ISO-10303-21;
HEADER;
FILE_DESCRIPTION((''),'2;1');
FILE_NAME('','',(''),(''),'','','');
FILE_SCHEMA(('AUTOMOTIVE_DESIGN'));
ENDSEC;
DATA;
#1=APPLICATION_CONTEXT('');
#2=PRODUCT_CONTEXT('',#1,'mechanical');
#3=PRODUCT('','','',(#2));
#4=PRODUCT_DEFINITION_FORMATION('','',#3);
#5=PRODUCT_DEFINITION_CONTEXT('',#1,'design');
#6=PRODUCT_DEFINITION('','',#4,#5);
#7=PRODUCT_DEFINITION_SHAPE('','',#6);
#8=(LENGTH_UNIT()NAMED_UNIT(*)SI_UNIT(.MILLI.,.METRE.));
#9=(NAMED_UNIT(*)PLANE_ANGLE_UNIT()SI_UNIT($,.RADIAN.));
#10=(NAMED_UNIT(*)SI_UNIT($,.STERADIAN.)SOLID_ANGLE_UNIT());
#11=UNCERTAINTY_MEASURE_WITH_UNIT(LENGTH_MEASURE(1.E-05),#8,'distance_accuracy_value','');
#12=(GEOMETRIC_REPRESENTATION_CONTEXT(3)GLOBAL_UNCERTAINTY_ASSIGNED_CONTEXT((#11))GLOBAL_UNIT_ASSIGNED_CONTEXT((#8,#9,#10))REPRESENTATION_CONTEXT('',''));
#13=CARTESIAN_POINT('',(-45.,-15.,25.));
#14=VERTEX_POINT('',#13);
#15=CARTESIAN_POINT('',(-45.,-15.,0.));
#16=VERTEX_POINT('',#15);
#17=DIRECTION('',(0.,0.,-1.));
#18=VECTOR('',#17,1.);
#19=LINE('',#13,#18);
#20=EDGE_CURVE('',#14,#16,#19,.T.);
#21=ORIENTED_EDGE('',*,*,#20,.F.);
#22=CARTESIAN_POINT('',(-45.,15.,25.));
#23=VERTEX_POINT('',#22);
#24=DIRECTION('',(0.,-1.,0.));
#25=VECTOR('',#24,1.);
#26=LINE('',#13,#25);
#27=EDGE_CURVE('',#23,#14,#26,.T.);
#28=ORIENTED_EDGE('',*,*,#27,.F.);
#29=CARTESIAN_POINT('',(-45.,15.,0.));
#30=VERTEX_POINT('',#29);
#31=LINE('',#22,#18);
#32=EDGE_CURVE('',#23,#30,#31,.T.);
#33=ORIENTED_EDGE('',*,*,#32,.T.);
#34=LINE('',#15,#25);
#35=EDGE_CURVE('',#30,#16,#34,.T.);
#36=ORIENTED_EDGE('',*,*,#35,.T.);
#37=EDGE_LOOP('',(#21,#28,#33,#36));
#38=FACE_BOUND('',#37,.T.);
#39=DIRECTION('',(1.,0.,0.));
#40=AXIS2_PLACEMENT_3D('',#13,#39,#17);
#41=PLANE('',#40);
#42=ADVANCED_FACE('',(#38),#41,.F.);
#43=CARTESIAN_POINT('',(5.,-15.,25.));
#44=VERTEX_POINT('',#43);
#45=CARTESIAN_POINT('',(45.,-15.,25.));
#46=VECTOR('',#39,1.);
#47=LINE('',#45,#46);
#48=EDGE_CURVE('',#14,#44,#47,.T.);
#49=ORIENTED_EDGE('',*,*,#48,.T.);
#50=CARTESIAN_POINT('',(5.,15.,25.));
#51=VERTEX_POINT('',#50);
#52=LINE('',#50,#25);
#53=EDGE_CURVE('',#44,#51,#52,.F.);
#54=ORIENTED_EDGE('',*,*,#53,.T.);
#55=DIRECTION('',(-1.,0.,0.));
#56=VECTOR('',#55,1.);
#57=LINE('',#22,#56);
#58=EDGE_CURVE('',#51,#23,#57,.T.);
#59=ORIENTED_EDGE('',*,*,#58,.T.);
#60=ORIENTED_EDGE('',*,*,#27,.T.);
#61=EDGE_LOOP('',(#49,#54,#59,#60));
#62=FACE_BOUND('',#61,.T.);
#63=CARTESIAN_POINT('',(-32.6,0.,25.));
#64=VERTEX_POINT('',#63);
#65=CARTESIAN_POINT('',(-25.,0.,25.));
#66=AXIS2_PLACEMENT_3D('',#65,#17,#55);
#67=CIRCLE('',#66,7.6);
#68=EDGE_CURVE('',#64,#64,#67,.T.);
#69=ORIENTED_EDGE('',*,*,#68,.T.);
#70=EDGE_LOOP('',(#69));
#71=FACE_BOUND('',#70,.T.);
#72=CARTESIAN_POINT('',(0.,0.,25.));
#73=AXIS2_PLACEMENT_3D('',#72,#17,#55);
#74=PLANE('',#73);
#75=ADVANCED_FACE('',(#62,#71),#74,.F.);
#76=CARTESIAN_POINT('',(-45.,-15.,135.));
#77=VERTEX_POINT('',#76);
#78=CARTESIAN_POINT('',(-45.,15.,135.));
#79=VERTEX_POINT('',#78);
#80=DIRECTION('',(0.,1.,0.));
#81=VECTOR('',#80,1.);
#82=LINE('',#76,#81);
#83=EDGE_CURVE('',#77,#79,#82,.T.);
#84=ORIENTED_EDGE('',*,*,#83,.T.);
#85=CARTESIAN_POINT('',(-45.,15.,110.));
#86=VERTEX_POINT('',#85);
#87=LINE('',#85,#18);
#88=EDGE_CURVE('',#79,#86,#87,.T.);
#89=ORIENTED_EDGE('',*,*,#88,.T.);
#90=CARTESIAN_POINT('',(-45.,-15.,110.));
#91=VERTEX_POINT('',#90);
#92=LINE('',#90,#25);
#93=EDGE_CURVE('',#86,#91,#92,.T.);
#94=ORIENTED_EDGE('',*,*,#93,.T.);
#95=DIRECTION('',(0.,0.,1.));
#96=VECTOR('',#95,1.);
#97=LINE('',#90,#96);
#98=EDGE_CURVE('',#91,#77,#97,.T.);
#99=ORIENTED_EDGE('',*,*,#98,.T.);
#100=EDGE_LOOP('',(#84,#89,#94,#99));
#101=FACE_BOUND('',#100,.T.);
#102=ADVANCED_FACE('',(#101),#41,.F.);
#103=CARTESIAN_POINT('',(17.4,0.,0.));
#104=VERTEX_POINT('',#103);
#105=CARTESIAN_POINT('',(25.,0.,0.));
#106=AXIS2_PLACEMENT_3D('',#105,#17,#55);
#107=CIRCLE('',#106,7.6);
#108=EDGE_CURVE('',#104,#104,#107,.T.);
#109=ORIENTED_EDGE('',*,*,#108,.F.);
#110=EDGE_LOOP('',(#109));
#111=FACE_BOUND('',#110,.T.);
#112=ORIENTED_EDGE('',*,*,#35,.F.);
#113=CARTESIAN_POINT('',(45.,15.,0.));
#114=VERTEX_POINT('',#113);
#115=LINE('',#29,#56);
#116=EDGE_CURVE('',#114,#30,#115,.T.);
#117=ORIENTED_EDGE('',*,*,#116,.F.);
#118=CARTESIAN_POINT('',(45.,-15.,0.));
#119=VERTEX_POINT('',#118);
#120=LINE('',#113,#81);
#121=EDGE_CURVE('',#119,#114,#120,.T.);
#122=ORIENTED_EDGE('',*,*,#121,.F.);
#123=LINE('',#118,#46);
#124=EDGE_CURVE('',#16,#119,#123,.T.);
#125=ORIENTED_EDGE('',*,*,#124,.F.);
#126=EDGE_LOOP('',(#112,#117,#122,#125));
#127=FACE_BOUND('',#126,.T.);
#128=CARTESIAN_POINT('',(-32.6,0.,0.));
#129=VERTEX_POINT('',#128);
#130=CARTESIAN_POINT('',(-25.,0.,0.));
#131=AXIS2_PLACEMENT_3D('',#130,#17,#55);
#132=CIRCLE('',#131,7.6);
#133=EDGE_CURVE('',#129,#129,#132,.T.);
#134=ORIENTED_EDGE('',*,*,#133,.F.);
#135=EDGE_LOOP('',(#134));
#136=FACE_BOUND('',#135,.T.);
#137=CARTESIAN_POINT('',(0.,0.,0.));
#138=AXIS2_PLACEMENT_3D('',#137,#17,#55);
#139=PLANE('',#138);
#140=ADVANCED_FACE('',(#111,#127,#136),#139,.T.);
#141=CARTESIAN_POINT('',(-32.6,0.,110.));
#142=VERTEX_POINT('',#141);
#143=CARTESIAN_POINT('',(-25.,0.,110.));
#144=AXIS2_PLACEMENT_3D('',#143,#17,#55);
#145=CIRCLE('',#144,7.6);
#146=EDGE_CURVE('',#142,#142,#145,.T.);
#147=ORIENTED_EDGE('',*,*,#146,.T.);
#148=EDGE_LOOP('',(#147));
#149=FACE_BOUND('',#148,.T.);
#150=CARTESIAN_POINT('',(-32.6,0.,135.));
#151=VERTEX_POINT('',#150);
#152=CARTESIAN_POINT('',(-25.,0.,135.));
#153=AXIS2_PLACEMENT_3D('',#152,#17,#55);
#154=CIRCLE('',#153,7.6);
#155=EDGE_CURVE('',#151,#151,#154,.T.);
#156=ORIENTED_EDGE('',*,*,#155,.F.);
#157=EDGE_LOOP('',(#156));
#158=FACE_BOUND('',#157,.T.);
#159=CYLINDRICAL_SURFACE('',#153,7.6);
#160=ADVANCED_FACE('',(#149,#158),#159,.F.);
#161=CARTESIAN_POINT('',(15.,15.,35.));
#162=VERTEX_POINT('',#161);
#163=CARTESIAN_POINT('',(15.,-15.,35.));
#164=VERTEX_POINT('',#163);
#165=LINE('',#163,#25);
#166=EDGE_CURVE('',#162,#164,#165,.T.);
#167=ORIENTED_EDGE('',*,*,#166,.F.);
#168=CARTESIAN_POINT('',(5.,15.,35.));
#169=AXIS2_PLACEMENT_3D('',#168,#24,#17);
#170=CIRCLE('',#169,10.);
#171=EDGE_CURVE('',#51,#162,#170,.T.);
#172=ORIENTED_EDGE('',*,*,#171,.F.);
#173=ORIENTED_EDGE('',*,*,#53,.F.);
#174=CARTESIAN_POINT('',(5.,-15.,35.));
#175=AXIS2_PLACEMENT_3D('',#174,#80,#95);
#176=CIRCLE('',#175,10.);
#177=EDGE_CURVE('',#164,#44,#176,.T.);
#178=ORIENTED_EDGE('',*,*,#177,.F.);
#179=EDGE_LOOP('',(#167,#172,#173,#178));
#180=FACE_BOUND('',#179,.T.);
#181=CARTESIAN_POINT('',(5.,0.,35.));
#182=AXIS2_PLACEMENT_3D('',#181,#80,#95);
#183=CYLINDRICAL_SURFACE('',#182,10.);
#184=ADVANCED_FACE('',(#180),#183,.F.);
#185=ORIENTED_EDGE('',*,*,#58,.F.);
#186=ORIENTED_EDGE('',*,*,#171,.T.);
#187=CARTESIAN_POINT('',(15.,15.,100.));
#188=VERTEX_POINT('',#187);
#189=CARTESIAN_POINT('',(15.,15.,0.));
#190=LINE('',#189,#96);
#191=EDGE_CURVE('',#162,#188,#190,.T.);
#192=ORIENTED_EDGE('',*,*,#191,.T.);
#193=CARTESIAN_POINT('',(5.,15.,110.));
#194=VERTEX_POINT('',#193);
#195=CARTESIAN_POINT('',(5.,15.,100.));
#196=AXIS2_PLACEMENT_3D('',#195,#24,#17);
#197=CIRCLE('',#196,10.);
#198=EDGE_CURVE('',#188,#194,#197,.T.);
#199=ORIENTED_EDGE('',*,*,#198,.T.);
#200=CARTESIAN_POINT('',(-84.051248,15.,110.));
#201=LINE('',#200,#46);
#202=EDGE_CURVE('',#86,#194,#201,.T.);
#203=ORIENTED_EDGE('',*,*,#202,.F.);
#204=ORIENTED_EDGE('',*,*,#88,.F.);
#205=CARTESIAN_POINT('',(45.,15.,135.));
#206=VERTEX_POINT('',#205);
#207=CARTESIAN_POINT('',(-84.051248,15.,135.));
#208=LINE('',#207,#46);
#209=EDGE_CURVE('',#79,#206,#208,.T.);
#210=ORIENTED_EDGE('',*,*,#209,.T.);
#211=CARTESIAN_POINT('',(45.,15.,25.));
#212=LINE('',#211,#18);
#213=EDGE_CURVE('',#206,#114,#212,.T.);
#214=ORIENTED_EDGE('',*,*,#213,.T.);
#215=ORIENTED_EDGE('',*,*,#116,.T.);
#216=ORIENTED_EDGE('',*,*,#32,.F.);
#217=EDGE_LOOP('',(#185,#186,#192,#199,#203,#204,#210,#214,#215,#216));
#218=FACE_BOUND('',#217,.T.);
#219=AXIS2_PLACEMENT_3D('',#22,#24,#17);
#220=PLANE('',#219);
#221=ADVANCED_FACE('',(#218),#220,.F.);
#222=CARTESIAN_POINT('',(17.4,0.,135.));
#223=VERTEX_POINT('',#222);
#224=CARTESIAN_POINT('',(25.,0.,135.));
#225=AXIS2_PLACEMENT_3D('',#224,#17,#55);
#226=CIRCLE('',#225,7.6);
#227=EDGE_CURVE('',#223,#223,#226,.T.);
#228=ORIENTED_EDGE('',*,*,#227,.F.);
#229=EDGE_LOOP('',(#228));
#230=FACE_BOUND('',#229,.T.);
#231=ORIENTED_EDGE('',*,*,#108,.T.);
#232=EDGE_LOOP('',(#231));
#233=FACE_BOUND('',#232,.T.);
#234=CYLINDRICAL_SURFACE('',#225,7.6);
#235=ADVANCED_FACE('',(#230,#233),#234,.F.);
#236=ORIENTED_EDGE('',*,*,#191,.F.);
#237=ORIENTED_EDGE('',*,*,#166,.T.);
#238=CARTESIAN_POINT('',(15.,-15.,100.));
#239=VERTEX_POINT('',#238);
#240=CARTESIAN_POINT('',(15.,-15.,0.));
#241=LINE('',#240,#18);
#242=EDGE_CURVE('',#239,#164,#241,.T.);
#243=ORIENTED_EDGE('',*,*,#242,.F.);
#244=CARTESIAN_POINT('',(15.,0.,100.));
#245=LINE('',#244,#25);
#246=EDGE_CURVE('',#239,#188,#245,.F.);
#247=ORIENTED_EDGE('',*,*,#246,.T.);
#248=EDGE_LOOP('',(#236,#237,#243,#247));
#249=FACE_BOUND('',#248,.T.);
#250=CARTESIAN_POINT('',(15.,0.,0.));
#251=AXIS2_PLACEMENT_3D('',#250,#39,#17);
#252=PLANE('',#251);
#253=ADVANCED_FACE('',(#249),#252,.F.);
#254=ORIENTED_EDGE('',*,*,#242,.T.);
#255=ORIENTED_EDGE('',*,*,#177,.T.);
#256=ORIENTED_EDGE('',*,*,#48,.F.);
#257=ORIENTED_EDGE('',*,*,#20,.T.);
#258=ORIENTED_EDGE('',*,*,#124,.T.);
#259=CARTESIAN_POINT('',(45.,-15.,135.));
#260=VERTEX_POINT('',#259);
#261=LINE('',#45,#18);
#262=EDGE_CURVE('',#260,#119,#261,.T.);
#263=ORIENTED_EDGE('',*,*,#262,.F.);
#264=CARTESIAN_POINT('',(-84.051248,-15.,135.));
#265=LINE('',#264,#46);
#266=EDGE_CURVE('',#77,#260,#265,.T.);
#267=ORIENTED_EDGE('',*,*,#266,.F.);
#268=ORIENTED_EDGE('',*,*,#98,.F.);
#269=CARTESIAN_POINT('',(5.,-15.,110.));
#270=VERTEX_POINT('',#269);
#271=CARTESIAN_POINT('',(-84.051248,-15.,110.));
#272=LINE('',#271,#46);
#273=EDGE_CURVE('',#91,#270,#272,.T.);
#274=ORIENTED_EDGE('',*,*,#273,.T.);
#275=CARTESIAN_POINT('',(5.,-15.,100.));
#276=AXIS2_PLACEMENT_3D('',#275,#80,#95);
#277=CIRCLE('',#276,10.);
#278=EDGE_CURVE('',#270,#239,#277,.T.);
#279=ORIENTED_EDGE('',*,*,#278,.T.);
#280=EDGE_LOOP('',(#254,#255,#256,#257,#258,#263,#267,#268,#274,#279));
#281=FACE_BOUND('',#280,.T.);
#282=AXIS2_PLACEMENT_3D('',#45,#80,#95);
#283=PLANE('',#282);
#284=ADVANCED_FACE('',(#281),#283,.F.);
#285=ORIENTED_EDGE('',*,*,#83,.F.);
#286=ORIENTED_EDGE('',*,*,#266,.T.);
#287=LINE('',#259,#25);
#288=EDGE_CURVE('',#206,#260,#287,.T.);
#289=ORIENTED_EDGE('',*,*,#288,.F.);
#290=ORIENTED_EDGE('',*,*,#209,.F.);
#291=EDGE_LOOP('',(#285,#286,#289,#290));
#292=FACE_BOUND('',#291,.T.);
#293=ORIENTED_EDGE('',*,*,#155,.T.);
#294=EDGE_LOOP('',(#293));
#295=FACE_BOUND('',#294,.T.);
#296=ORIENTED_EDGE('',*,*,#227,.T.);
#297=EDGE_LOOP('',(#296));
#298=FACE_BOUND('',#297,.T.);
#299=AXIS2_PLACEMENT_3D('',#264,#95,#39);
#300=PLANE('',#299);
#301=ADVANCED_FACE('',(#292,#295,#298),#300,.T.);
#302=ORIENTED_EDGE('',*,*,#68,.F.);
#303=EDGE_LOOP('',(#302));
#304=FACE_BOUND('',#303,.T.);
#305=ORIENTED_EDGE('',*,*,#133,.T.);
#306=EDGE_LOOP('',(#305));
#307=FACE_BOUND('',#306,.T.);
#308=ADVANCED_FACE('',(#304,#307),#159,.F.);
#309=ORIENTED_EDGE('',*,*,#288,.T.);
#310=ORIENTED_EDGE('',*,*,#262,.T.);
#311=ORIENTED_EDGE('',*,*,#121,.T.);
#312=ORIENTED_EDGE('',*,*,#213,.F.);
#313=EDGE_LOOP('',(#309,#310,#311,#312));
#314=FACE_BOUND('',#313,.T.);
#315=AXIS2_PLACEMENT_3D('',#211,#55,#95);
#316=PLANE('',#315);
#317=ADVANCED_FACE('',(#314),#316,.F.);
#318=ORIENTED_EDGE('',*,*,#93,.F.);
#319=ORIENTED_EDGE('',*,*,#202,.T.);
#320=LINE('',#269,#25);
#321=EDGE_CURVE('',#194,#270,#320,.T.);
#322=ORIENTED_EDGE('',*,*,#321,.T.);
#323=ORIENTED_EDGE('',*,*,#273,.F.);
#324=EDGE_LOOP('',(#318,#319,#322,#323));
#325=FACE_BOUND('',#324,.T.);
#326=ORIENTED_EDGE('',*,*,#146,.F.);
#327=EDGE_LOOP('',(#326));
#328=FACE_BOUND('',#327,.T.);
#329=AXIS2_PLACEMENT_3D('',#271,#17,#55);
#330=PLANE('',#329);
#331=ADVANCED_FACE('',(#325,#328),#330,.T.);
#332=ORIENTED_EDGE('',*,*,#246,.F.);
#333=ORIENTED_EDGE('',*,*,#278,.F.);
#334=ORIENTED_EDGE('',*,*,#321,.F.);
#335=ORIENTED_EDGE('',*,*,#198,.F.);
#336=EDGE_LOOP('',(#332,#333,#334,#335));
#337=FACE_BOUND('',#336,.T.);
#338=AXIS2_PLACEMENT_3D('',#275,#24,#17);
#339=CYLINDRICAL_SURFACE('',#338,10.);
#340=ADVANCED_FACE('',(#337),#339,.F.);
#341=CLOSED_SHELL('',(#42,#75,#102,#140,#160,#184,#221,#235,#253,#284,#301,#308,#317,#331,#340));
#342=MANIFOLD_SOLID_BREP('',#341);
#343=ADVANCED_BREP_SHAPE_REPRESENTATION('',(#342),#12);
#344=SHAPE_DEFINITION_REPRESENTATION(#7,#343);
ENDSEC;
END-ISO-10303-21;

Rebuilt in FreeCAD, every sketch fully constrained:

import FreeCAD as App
import Part
import Sketcher
Q = App.Units.Quantity


def edges_at(feature, points):
    """Names of the edges that pass closest to the given points."""
    edges = feature.Shape.Edges
    near = lambda p: min(range(len(edges)), key=lambda i: edges[i].distToShape(Part.Vertex(*p))[0])
    return sorted({f"Edge{near(p) + 1}" for p in points})


def add_polygon(sketch, points):
    """Adds a closed chain of lines whose ends are joined by coincident constraints."""
    first, n = sketch.GeometryCount, len(points)
    for a, b in zip(points, points[1:] + points[:1]):
        sketch.addGeometry(Part.LineSegment(App.Vector(*a, 0), App.Vector(*b, 0)), False)
    for i in range(n):
        sketch.addConstraint(Sketcher.Constraint("Coincident", first + i, 2, first + (i + 1) % n, 1))

doc = App.newDocument("Part")
params = doc.addObject("Spreadsheet::Sheet", "Params")
for row, (alias, value) in enumerate([
    ("sketch1_width", "90 mm"),
    ("sketch1_height", "30 mm"),
    ("pad1_length", "25 mm"),
    ("sketch2_width", "30 mm"),
    ("sketch2_height", "110 mm"),
    ("pad2_length", "30 mm"),
    ("sketch3_width", "30 mm"),
    ("sketch3_height", "25 mm"),
    ("pad3_length", "90 mm"),
    ("sketch4_diameter", "15.2 mm"),
    ("fillet_radius", "10 mm"),
], start=1):
    params.set(f"A{row}", alias)
    params.set(f"B{row}", "=" + value)
    params.setAlias(f"B{row}", alias)

body = doc.addObject("PartDesign::Body", "Body")

# Sketch on XY plane
sketch1 = doc.addObject("Sketcher::SketchObject", "Sketch")
body.addObject(sketch1)
sketch1.AttachmentSupport = (doc.XY_Plane, [""])
sketch1.MapMode = "FlatFace"
add_polygon(sketch1, [(-45, 15), (-45, -15), (45, -15), (45, 15)])  # lines 0-3
sketch1.addConstraint([
    Sketcher.Constraint("Vertical", 0),
    Sketcher.Constraint("Horizontal", 1),
    Sketcher.Constraint("Vertical", 2),
    Sketcher.Constraint("Horizontal", 3),
    Sketcher.Constraint("Symmetric", 0, 2, 2, 2, -1, 1),
    Sketcher.Constraint("DistanceX", 1, 1, 1, 2, Q("90 mm")),
    Sketcher.Constraint("DistanceY", 0, 2, 0, 1, Q("30 mm")),
])
sketch1.setExpression("Constraints[9]", "Params.sketch1_width")
sketch1.setExpression("Constraints[10]", "Params.sketch1_height")
pad1 = doc.addObject("PartDesign::Pad", "Pad")
body.addObject(pad1)
pad1.Profile = sketch1
pad1.setExpression("Length", "Params.pad1_length")

# Sketch on YZ plane
sketch2 = doc.addObject("Sketcher::SketchObject", "Sketch001")
body.addObject(sketch2)
sketch2.AttachmentSupport = (doc.YZ_Plane, [""])
sketch2.MapMode = "FlatFace"
sketch2.AttachmentOffset = App.Placement(App.Vector(0, 0, 45), App.Rotation())
add_polygon(sketch2, [(15, 110), (-15, 110), (-15, 0), (15, 0)])  # lines 0-3
sketch2.addConstraint([
    Sketcher.Constraint("Horizontal", 0),
    Sketcher.Constraint("Vertical", 1),
    Sketcher.Constraint("Horizontal", 2),
    Sketcher.Constraint("Vertical", 3),
    Sketcher.Constraint("Symmetric", 1, 2, 2, 2, -1, 1),
    Sketcher.Constraint("DistanceX", 0, 2, 0, 1, Q("30 mm")),
    Sketcher.Constraint("DistanceY", 1, 2, 1, 1, Q("110 mm")),
])
sketch2.setExpression("Constraints[9]", "Params.sketch2_width")
sketch2.setExpression("Constraints[10]", "Params.sketch2_height")
pad2 = doc.addObject("PartDesign::Pad", "Pad001")
body.addObject(pad2)
pad2.Profile = sketch2
pad2.setExpression("Length", "Params.pad2_length")
pad2.Reversed = True

# Sketch on YZ plane
sketch3 = doc.addObject("Sketcher::SketchObject", "Sketch002")
body.addObject(sketch3)
sketch3.AttachmentSupport = (doc.YZ_Plane, [""])
sketch3.MapMode = "FlatFace"
sketch3.AttachmentOffset = App.Placement(App.Vector(0, 0, -45), App.Rotation())
add_polygon(sketch3, [(15, 135), (-15, 135), (-15, 110), (15, 110)])  # lines 0-3
sketch3.addConstraint([
    Sketcher.Constraint("Horizontal", 0),
    Sketcher.Constraint("Vertical", 1),
    Sketcher.Constraint("Horizontal", 2),
    Sketcher.Constraint("Vertical", 3),
    Sketcher.Constraint("DistanceX", 0, 2, 0, 1, Q("30 mm")),
    Sketcher.Constraint("DistanceY", 1, 2, 1, 1, Q("25 mm")),
    Sketcher.Constraint("DistanceX", 0, 2, -1, 1, Q("15 mm")),
    Sketcher.Constraint("DistanceY", -1, 1, 0, 2, Q("135 mm")),
])
sketch3.setExpression("Constraints[8]", "Params.sketch3_width")
sketch3.setExpression("Constraints[9]", "Params.sketch3_height")
pad3 = doc.addObject("PartDesign::Pad", "Pad002")
body.addObject(pad3)
pad3.Profile = sketch3
pad3.setExpression("Length", "Params.pad3_length")

# Sketch on XY plane
sketch4 = doc.addObject("Sketcher::SketchObject", "Sketch003")
body.addObject(sketch4)
sketch4.AttachmentSupport = (doc.XY_Plane, [""])
sketch4.MapMode = "FlatFace"
sketch4.addGeometry([
    Part.Circle(App.Vector(-25, 0, 0), App.Vector(0, 0, 1), 8),
    Part.Circle(App.Vector(25, 0, 0), App.Vector(0, 0, 1), 8),
], False)
sketch4.addConstraint([
    Sketcher.Constraint("Equal", 0, 1),
    Sketcher.Constraint("Symmetric", 0, 3, 1, 3, -1, 1),
    Sketcher.Constraint("PointOnObject", 0, 3, -1),
    Sketcher.Constraint("Diameter", 0, Q("15.2 mm")),
    Sketcher.Constraint("DistanceX", 0, 3, -1, 1, Q("25 mm")),
])
sketch4.setExpression("Constraints[3]", "Params.sketch4_diameter")
pocket1 = doc.addObject("PartDesign::Pocket", "Pocket")
body.addObject(pocket1)
pocket1.Profile = sketch4
pocket1.Type = "ThroughAll"
pocket1.Reversed = True
doc.recompute()

fillet = doc.addObject("PartDesign::Fillet", "Fillet")
body.addObject(fillet)
fillet.Base = (pocket1, edges_at(pocket1, [(15, 0, 25), (15, 0, 110)]))
fillet.setExpression("Radius", "Params.fillet_radius")

doc.recompute()
